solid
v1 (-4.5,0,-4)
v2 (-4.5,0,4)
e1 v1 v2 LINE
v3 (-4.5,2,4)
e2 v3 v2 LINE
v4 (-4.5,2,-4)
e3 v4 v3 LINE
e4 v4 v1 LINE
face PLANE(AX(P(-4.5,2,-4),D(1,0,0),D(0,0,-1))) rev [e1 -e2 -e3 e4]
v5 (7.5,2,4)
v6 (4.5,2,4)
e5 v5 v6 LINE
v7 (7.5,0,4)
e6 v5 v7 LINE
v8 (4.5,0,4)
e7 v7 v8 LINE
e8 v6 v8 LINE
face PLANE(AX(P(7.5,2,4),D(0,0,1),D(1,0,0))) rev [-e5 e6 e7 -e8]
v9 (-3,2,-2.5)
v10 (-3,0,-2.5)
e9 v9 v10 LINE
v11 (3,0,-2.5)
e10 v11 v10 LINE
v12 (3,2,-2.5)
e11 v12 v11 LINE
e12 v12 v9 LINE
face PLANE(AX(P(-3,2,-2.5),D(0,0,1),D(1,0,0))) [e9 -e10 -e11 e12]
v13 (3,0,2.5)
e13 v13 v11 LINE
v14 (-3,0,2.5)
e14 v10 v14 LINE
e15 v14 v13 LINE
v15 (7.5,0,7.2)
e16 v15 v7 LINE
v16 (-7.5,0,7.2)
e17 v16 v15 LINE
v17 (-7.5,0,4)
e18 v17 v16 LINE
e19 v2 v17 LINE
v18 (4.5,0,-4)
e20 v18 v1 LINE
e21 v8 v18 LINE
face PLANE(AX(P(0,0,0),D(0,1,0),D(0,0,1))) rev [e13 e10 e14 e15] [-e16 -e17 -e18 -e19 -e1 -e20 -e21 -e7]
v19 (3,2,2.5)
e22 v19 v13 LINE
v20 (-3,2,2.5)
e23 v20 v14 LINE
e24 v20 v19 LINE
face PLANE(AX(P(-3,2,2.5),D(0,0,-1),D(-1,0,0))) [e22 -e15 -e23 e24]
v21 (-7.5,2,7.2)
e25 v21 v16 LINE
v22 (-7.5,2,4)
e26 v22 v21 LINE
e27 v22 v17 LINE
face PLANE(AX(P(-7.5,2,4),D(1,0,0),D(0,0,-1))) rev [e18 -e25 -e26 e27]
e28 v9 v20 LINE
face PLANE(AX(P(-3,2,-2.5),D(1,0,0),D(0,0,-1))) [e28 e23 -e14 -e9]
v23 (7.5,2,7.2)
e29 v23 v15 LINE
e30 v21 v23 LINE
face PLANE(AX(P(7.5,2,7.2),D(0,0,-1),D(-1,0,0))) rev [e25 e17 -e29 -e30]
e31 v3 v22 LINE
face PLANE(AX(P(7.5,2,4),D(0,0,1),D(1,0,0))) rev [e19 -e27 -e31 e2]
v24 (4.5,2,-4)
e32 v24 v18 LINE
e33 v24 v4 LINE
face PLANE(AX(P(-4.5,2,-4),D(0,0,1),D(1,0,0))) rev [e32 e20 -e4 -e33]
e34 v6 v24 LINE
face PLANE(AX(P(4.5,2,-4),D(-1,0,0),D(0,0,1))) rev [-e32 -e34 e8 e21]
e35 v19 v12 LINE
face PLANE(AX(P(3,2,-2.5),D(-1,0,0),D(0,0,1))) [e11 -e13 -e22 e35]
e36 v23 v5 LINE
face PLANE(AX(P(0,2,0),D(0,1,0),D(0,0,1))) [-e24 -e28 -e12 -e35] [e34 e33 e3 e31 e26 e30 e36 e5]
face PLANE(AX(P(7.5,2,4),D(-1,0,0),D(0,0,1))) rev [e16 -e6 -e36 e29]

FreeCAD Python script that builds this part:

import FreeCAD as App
import Part
import Sketcher
from FreeCAD import Vector


def add_polygon(sketch, points):
    """Adds a closed chain of lines whose ends are joined by coincident constraints."""
    first, n = sketch.GeometryCount, len(points)
    for a, b in zip(points, points[1:] + points[:1]):
        sketch.addGeometry(Part.LineSegment(App.Vector(*a, 0), App.Vector(*b, 0)), False)
    for i in range(n):
        sketch.addConstraint(Sketcher.Constraint("Coincident", first + i, 2, first + (i + 1) % n, 1))

doc = App.newDocument("Part")
params = doc.addObject("Spreadsheet::Sheet", "Params")
for row, (alias, value) in enumerate([
    ("sketch1_width", "9 mm"),
    ("sketch1_width2", "6 mm"),
    ("sketch1_height", "8 mm"),
    ("sketch1_height2", "5 mm"),
    ("pad1_length", "2 mm"),
    ("sketch2_width", "15 mm"),
    ("sketch2_height", "3.2 mm"),
    ("pad2_length", "2 mm"),
], start=1):
    params.set(f"A{row}", alias)
    params.set(f"B{row}", "=" + value)
    params.setAlias(f"B{row}", alias)

body = doc.addObject("PartDesign::Body", "Body")

# Sketch on XZ plane
sketch1 = body.newObject("Sketcher::SketchObject", "Sketch")
sketch1.AttachmentSupport = (doc.getObject("XZ_Plane"), [""])
sketch1.MapMode = "FlatFace"
add_polygon(sketch1, [(-4, -4), (-4, 4), (4, 4), (4, -4)])  # lines 0-3
add_polygon(sketch1, [(3, 2), (-3, 2), (-3, -2), (3, -2)])  # lines 4-7
sketch1.addConstraint(Sketcher.Constraint("Vertical", 0))
sketch1.addConstraint(Sketcher.Constraint("Horizontal", 1))
sketch1.addConstraint(Sketcher.Constraint("Vertical", 2))
sketch1.addConstraint(Sketcher.Constraint("Horizontal", 3))
sketch1.addConstraint(Sketcher.Constraint("Horizontal", 4))
sketch1.addConstraint(Sketcher.Constraint("Vertical", 5))
sketch1.addConstraint(Sketcher.Constraint("Horizontal", 6))
sketch1.addConstraint(Sketcher.Constraint("Vertical", 7))
sketch1.addConstraint(Sketcher.Constraint("Symmetric", 0, 2, 2, 2, -1, 1))
sketch1.addConstraint(Sketcher.Constraint("Symmetric", 4, 2, 6, 2, -1, 1))
sketch1.addConstraint(Sketcher.Constraint("DistanceX", 1, 1, 1, 2, 9.0))
sketch1.addConstraint(Sketcher.Constraint("DistanceX", 4, 2, 4, 1, 6.0))
sketch1.addConstraint(Sketcher.Constraint("DistanceY", 0, 1, 0, 2, 8.0))
sketch1.addConstraint(Sketcher.Constraint("DistanceY", 5, 2, 5, 1, 5.0))
sketch1.setExpression("Constraints[18]", "Params.sketch1_width")
sketch1.setExpression("Constraints[19]", "Params.sketch1_width2")
sketch1.setExpression("Constraints[20]", "Params.sketch1_height")
sketch1.setExpression("Constraints[21]", "Params.sketch1_height2")
pad1 = body.newObject("PartDesign::Pad", "Pad")
pad1.Profile = sketch1
pad1.setExpression("Length", "Params.pad1_length")
pad1.Reversed = True

# Sketch on XZ plane
sketch2 = body.newObject("Sketcher::SketchObject", "Sketch001")
sketch2.AttachmentSupport = (doc.getObject("XZ_Plane"), [""])
sketch2.MapMode = "FlatFace"
add_polygon(sketch2, [(-7.5, 4), (-7.5, 7.2), (7.5, 7.2), (7.5, 4)])  # lines 0-3
sketch2.addConstraint(Sketcher.Constraint("Vertical", 0))
sketch2.addConstraint(Sketcher.Constraint("Horizontal", 1))
sketch2.addConstraint(Sketcher.Constraint("Vertical", 2))
sketch2.addConstraint(Sketcher.Constraint("Horizontal", 3))
sketch2.addConstraint(Sketcher.Constraint("DistanceX", 1, 1, 1, 2, 15.0))
sketch2.addConstraint(Sketcher.Constraint("DistanceY", 0, 1, 0, 2, 3.2))
sketch2.addConstraint(Sketcher.Constraint("DistanceY", -1, 1, 2, 2, 4.0))
sketch2.addConstraint(Sketcher.Constraint("DistanceX", 0, 2, -1, 1, 7.5))
sketch2.setExpression("Constraints[8]", "Params.sketch2_width")
sketch2.setExpression("Constraints[9]", "Params.sketch2_height")
pad2 = body.newObject("PartDesign::Pad", "Pad001")
pad2.Profile = sketch2
pad2.setExpression("Length", "Params.pad2_length")
pad2.Reversed = True

doc.recompute()
